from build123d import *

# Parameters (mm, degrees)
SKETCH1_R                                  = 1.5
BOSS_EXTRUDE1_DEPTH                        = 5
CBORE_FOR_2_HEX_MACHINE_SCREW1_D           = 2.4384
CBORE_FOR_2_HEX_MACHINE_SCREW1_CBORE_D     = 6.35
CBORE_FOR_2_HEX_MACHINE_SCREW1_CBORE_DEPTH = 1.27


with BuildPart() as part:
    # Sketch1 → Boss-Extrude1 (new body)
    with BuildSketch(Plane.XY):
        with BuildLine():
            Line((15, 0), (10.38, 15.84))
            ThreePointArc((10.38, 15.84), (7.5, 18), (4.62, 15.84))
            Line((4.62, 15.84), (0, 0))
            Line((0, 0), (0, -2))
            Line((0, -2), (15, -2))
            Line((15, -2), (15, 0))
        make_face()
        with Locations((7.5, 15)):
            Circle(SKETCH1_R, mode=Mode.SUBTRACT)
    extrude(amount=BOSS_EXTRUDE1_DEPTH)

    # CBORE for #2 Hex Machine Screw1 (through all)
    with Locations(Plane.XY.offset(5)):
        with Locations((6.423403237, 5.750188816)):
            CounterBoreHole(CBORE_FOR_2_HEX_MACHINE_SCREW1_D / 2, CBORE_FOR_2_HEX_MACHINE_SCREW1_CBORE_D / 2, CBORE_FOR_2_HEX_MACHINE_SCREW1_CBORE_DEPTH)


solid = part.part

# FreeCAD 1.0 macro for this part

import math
import FreeCAD as App
import Part
import Sketcher

doc = App.newDocument("Part")
params = doc.addObject("Spreadsheet::Sheet", "Params")
for row, (alias, value) in enumerate([
    ("sketch1_diameter", "3 mm"),
    ("sketch1_radius", "3 mm"),
    ("sketch1_width", "15 mm"),
    ("sketch1_height", "2 mm"),
    ("pad1_length", "5 mm"),
    ("hole_diameter", "2.4384 mm"),
    ("hole_cbore_diameter", "6.35 mm"),
    ("hole_cbore_depth", "1.27 mm"),
], start=1):
    params.set(f"A{row}", alias)
    params.set(f"B{row}", "=" + value)
    params.setAlias(f"B{row}", alias)

body = doc.addObject("PartDesign::Body", "Body")

# Sketch on XY plane
sketch1 = body.newObject("Sketcher::SketchObject", "Sketch")
sketch1.AttachmentSupport = (doc.getObject("XY_Plane"), [""])
sketch1.MapMode = "FlatFace"
sketch1.addGeometry([
    Part.LineSegment(App.Vector(15, 0, 0), App.Vector(10.4, 15.8, 0)),  # 0
    Part.ArcOfCircle(Part.Circle(App.Vector(7.5, 15, 0), App.Vector(0, 0, 1), 3), math.radians(16), math.radians(164)),  # 1
    Part.LineSegment(App.Vector(4.6, 15.8, 0), App.Vector(0, 0, 0)),  # 2
    Part.LineSegment(App.Vector(0, 0, 0), App.Vector(0, -2, 0)),  # 3
    Part.LineSegment(App.Vector(0, -2, 0), App.Vector(15, -2, 0)),  # 4
    Part.LineSegment(App.Vector(15, -2, 0), App.Vector(15, 0, 0)),  # 5
    Part.Circle(App.Vector(7.5, 15, 0), App.Vector(0, 0, 1), 1.5),  # 6
], False)
sketch1.addConstraint([
    Sketcher.Constraint("Tangent", 0, 2, 1, 1),
    Sketcher.Constraint("Tangent", 1, 2, 2, 1),
    Sketcher.Constraint("Coincident", 2, 2, 3, 1),
    Sketcher.Constraint("Coincident", 3, 2, 4, 1),
    Sketcher.Constraint("Coincident", 4, 2, 5, 1),
    Sketcher.Constraint("Coincident", 5, 2, 0, 1),
    Sketcher.Constraint("Vertical", 3),
    Sketcher.Constraint("Horizontal", 4),
    Sketcher.Constraint("Vertical", 5),
    Sketcher.Constraint("Coincident", 2, 2, -1, 1),
    Sketcher.Constraint("Coincident", 6, 3, 1, 3),
    Sketcher.Constraint("PointOnObject", 5, 2, -1),
    Sketcher.Constraint("Horizontal", 0, 2, 1, 2),
    Sketcher.Constraint("Diameter", 6, 3.0),
    Sketcher.Constraint("Radius", 1, 3.0),
    Sketcher.Constraint("DistanceX", 4, 1, 4, 2, 15.0),
    Sketcher.Constraint("DistanceY", 3, 2, 3, 1, 2.0),
    Sketcher.Constraint("DistanceY", -1, 1, 1, 3, 15.0),
])
sketch1.setExpression("Constraints[13]", "Params.sketch1_diameter")
sketch1.setExpression("Constraints[14]", "Params.sketch1_radius")
sketch1.setExpression("Constraints[15]", "Params.sketch1_width")
sketch1.setExpression("Constraints[16]", "Params.sketch1_height")
pad1 = body.newObject("PartDesign::Pad", "Pad")
pad1.Profile = sketch1
pad1.setExpression("Length", "Params.pad1_length")

# Sketch on XY plane
sketch2 = body.newObject("Sketcher::SketchObject", "Sketch001")
sketch2.AttachmentSupport = (doc.getObject("XY_Plane"), [""])
sketch2.MapMode = "FlatFace"
sketch2.AttachmentOffset = App.Placement(App.Vector(0, 0, 5), App.Rotation())
sketch2.addGeometry(Part.Circle(App.Vector(6.4, 5.8, 0), App.Vector(0, 0, 1), 1.2), False)
sketch2.addConstraint([
    Sketcher.Constraint("Diameter", 0, 2.4384),
    Sketcher.Constraint("DistanceY", -1, 1, 0, 3, 5.750189),
    Sketcher.Constraint("DistanceX", -1, 1, 0, 3, 6.423403),
])
doc.recompute()
hole = body.newObject("PartDesign::Hole", "Hole")
hole.Profile = sketch2
hole.ThreadType = "None"
hole.setExpression("Diameter", "Params.hole_diameter")
hole.DepthType = "ThroughAll"
hole.HoleCutType = "Counterbore"
hole.setExpression("HoleCutDiameter", "Params.hole_cbore_diameter")
hole.setExpression("HoleCutDepth", "Params.hole_cbore_depth")

doc.recompute()
